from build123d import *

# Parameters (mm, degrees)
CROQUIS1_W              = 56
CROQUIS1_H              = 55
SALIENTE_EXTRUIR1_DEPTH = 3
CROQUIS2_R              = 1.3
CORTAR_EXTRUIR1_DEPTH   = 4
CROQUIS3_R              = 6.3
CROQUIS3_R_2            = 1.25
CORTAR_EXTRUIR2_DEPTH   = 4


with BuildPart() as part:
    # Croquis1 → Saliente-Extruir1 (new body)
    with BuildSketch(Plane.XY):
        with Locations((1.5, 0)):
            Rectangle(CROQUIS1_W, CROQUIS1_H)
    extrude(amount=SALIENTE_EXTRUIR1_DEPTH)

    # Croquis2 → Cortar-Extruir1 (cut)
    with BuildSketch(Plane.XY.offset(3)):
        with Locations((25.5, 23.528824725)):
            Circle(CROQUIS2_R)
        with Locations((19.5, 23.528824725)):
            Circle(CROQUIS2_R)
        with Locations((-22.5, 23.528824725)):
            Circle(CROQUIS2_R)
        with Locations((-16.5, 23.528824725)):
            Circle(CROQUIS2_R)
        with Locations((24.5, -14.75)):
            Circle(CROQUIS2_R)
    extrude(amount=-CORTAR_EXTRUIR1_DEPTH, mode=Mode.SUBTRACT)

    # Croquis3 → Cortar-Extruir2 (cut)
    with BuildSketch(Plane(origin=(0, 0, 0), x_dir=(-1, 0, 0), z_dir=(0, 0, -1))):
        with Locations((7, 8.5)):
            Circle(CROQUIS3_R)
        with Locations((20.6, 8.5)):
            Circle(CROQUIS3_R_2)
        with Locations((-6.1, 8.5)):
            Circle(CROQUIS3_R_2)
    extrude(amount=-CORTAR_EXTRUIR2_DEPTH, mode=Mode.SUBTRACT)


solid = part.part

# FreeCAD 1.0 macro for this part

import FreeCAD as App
import Part
import Sketcher
Q = App.Units.Quantity


def add_polygon(sketch, points):
    """Adds a closed chain of lines whose ends are joined by coincident constraints."""
    first, n = sketch.GeometryCount, len(points)
    for a, b in zip(points, points[1:] + points[:1]):
        sketch.addGeometry(Part.LineSegment(App.Vector(*a, 0), App.Vector(*b, 0)), False)
    for i in range(n):
        sketch.addConstraint(Sketcher.Constraint("Coincident", first + i, 2, first + (i + 1) % n, 1))

doc = App.newDocument("Part")
body = doc.addObject("PartDesign::Body", "Body")

# Sketch on XY plane
sketch1 = body.newObject("Sketcher::SketchObject", "Sketch")
sketch1.AttachmentSupport = (doc.getObject("XY_Plane"), [""])
sketch1.MapMode = "FlatFace"
add_polygon(sketch1, [(-26, 28), (-26, -28), (30, -28), (30, 28)])  # lines 0-3
sketch1.addConstraint([
    Sketcher.Constraint("Vertical", 0),
    Sketcher.Constraint("Horizontal", 1),
    Sketcher.Constraint("Vertical", 2),
    Sketcher.Constraint("Horizontal", 3),
    Sketcher.Constraint("DistanceX", 1, 1, 1, 2, Q("56 mm")),
    Sketcher.Constraint("DistanceY", 0, 2, 0, 1, Q("55 mm")),
    Sketcher.Constraint("DistanceX", 0, 2, -1, 1, Q("26.5 mm")),
    Sketcher.Constraint("DistanceY", 0, 2, -1, 1, Q("27.5 mm")),
])
pad1 = body.newObject("PartDesign::Pad", "Pad")
pad1.Profile = sketch1
pad1.Length = 3

# Sketch on XY plane
sketch2 = body.newObject("Sketcher::SketchObject", "Sketch001")
sketch2.AttachmentSupport = (doc.getObject("XY_Plane"), [""])
sketch2.MapMode = "FlatFace"
sketch2.AttachmentOffset = App.Placement(App.Vector(0, 0, 3), App.Rotation())
sketch2.addGeometry([
    Part.Circle(App.Vector(25.5, 23.5, 0), App.Vector(0, 0, 1), 1.3),  # 0
    Part.Circle(App.Vector(19.5, 23.5, 0), App.Vector(0, 0, 1), 1.3),  # 1
    Part.Circle(App.Vector(-22.5, 23.5, 0), App.Vector(0, 0, 1), 1.3),  # 2
    Part.Circle(App.Vector(-16.5, 23.5, 0), App.Vector(0, 0, 1), 1.3),  # 3
    Part.Circle(App.Vector(24.5, -14.8, 0), App.Vector(0, 0, 1), 1.3),  # 4
], False)
sketch2.addConstraint([
    Sketcher.Constraint("Equal", 0, 1),
    Sketcher.Constraint("Equal", 1, 2),
    Sketcher.Constraint("Equal", 2, 3),
    Sketcher.Constraint("Equal", 3, 4),
    Sketcher.Constraint("Horizontal", 0, 3, 1, 3),
    Sketcher.Constraint("Horizontal", 1, 3, 2, 3),
    Sketcher.Constraint("Horizontal", 2, 3, 3, 3),
    Sketcher.Constraint("Diameter", 0, Q("2.6 mm")),
    Sketcher.Constraint("DistanceX", 1, 3, 0, 3, Q("6 mm")),
    Sketcher.Constraint("DistanceX", 2, 3, 1, 3, Q("42 mm")),
    Sketcher.Constraint("DistanceX", 2, 3, 3, 3, Q("6 mm")),
    Sketcher.Constraint("DistanceX", 4, 3, 0, 3, Q("1 mm")),
    Sketcher.Constraint("DistanceX", -1, 1, 0, 3, Q("25.5 mm")),
    Sketcher.Constraint("DistanceY", 4, 3, -1, 1, Q("14.75 mm")),
    Sketcher.Constraint("DistanceY", -1, 1, 0, 3, Q("23.528825 mm")),
])
pocket1 = body.newObject("PartDesign::Pocket", "Pocket")
pocket1.Profile = sketch2
pocket1.Length = 4

# Sketch on XY plane
sketch3 = body.newObject("Sketcher::SketchObject", "Sketch002")
sketch3.AttachmentSupport = (doc.getObject("XY_Plane"), [""])
sketch3.MapMode = "FlatFace"
sketch3.addGeometry([
    Part.Circle(App.Vector(-7, 8.5, 0), App.Vector(0, 0, 1), 6.3),
    Part.Circle(App.Vector(-20.6, 8.5, 0), App.Vector(0, 0, 1), 1.2),
    Part.Circle(App.Vector(6.1, 8.5, 0), App.Vector(0, 0, 1), 1.2),
], False)
sketch3.addConstraint([
    Sketcher.Constraint("Equal", 1, 2),
    Sketcher.Constraint("Horizontal", 0, 3, 1, 3),
    Sketcher.Constraint("Horizontal", 1, 3, 2, 3),
    Sketcher.Constraint("Diameter", 0, Q("12.6 mm")),
    Sketcher.Constraint("Diameter", 1, Q("2.5 mm")),
    Sketcher.Constraint("DistanceX", 0, 3, -1, 1, Q("7 mm")),
    Sketcher.Constraint("DistanceY", -1, 1, 0, 3, Q("8.5 mm")),
    Sketcher.Constraint("DistanceX", 1, 3, -1, 1, Q("20.6 mm")),
    Sketcher.Constraint("DistanceX", -1, 1, 2, 3, Q("6.1 mm")),
])
pocket2 = body.newObject("PartDesign::Pocket", "Pocket001")
pocket2.Profile = sketch3
pocket2.Length = 4
pocket2.Reversed = True

doc.recompute()
